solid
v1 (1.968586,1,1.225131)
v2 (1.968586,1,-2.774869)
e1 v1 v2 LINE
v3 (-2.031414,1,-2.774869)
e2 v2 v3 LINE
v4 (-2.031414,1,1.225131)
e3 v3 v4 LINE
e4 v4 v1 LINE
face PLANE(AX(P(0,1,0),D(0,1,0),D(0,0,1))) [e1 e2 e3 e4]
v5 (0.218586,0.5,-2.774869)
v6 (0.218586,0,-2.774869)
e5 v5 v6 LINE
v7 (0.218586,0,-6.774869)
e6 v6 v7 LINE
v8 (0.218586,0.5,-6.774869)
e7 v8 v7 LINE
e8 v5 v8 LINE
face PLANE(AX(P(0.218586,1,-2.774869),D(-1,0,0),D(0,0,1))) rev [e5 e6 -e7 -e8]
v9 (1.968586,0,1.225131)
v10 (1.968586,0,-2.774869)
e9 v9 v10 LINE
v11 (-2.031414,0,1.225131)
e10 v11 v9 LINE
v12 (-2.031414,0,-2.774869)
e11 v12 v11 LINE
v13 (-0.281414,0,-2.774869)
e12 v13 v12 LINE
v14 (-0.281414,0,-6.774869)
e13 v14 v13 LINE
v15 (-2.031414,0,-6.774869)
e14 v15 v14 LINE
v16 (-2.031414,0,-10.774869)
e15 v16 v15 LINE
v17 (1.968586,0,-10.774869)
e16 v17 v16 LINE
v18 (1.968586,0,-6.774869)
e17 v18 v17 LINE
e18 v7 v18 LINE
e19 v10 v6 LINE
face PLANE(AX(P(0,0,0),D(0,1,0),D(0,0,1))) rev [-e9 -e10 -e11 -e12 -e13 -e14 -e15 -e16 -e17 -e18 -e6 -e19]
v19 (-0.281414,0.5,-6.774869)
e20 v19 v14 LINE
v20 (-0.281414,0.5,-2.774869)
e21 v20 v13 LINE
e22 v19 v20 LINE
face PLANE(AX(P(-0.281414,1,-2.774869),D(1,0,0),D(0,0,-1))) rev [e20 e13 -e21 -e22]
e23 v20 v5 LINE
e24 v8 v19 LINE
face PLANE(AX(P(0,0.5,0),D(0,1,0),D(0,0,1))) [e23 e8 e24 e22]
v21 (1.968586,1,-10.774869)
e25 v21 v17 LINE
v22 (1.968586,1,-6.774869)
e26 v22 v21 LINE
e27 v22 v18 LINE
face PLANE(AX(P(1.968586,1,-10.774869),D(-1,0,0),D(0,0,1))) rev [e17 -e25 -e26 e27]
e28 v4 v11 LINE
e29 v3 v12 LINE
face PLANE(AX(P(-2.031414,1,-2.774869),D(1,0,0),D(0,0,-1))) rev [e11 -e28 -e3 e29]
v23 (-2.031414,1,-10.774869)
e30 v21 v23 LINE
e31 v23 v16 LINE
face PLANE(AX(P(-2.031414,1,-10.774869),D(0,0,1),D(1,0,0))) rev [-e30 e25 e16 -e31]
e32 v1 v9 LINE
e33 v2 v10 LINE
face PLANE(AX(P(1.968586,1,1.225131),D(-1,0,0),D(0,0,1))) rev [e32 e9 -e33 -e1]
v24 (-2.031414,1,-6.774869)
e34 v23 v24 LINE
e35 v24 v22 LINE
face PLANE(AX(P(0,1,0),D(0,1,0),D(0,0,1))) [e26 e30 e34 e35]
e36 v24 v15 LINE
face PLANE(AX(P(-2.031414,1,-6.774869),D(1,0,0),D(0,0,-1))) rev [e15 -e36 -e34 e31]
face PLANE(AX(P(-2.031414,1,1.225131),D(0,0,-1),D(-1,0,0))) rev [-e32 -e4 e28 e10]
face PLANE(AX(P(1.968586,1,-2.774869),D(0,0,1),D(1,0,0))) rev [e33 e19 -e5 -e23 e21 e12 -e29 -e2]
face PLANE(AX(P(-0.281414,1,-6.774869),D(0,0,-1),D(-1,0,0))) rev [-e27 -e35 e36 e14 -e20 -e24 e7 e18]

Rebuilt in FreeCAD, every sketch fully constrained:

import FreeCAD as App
import Part
import Sketcher
from FreeCAD import Vector

doc = App.newDocument("Part")
body = doc.addObject("PartDesign::Body", "Body")

# Sketch on XZ plane
sketch1 = body.newObject("Sketcher::SketchObject", "Sketch")
sketch1.AttachmentSupport = (doc.getObject("XZ_Plane"), [""])
sketch1.MapMode = "FlatFace"
sketch1.addGeometry([
    Part.LineSegment(Vector(-2, -2.8, 0), Vector(-2, 1.2, 0)),  # 0
    Part.LineSegment(Vector(-2, 1.2, 0), Vector(2, 1.2, 0)),  # 1
    Part.LineSegment(Vector(2, 1.2, 0), Vector(2, -2.8, 0)),  # 2
    Part.LineSegment(Vector(2, -2.8, 0), Vector(0.2, -2.8, 0)),  # 3
    Part.LineSegment(Vector(0.2, -2.8, 0), Vector(0.2, -6.8, 0)),  # 4
    Part.LineSegment(Vector(0.2, -6.8, 0), Vector(2, -6.8, 0)),  # 5
    Part.LineSegment(Vector(2, -6.8, 0), Vector(2, -10.8, 0)),  # 6
    Part.LineSegment(Vector(2, -10.8, 0), Vector(-2, -10.8, 0)),  # 7
    Part.LineSegment(Vector(-2, -10.8, 0), Vector(-2, -6.8, 0)),  # 8
    Part.LineSegment(Vector(-2, -6.8, 0), Vector(-0.3, -6.8, 0)),  # 9
    Part.LineSegment(Vector(-0.3, -6.8, 0), Vector(-0.3, -2.8, 0)),  # 10
    Part.LineSegment(Vector(-0.3, -2.8, 0), Vector(-2, -2.8, 0)),  # 11
], False)
sketch1.addConstraint([
    Sketcher.Constraint("Coincident", 0, 2, 1, 1),
    Sketcher.Constraint("Coincident", 1, 2, 2, 1),
    Sketcher.Constraint("Coincident", 2, 2, 3, 1),
    Sketcher.Constraint("Coincident", 3, 2, 4, 1),
    Sketcher.Constraint("Coincident", 4, 2, 5, 1),
    Sketcher.Constraint("Coincident", 5, 2, 6, 1),
    Sketcher.Constraint("Coincident", 6, 2, 7, 1),
    Sketcher.Constraint("Coincident", 7, 2, 8, 1),
    Sketcher.Constraint("Coincident", 8, 2, 9, 1),
    Sketcher.Constraint("Coincident", 9, 2, 10, 1),
    Sketcher.Constraint("Coincident", 10, 2, 11, 1),
    Sketcher.Constraint("Coincident", 11, 2, 0, 1),
    Sketcher.Constraint("Vertical", 0),
    Sketcher.Constraint("Horizontal", 1),
    Sketcher.Constraint("Vertical", 2),
    Sketcher.Constraint("Horizontal", 3),
    Sketcher.Constraint("Vertical", 4),
    Sketcher.Constraint("Horizontal", 5),
    Sketcher.Constraint("Vertical", 6),
    Sketcher.Constraint("Horizontal", 7),
    Sketcher.Constraint("Vertical", 8),
    Sketcher.Constraint("Horizontal", 9),
    Sketcher.Constraint("Vertical", 10),
    Sketcher.Constraint("Horizontal", 11),
    Sketcher.Constraint("Horizontal", 5, 2, 8, 2),
    Sketcher.Constraint("Horizontal", 3, 2, 10, 2),
    Sketcher.Constraint("Vertical", 2, 2, 5, 2),
    Sketcher.Constraint("Vertical", 0, 2, 7, 2),
    Sketcher.Constraint("Equal", 5, 9),
    Sketcher.Constraint("Equal", 7, 0),
    Sketcher.Constraint("Equal", 2, 4),
    Sketcher.Constraint("Equal", 4, 6),
    Sketcher.Constraint("DistanceX", 1, 1, 1, 2, 4.0),
    Sketcher.Constraint("DistanceX", 3, 2, 3, 1, 1.75),
    Sketcher.Constraint("DistanceY", -1, 1, 0, 2, 1.225131),
    Sketcher.Constraint("DistanceX", 0, 2, -1, 1, 2.031414),
])
pad1 = body.newObject("PartDesign::Pad", "Pad")
pad1.Profile = sketch1
pad1.Length = 1
pad1.Reversed = True

# Sketch on XZ plane
sketch2 = body.newObject("Sketcher::SketchObject", "Sketch001")
sketch2.AttachmentSupport = (doc.getObject("XZ_Plane"), [""])
sketch2.MapMode = "FlatFace"
sketch2.AttachmentOffset = App.Placement(Vector(0, 0, -1), App.Rotation())
sketch2.addGeometry([
    Part.LineSegment(Vector(-0.3, -6.8, 0), Vector(-0.3, -2.8, 0)),
    Part.LineSegment(Vector(-0.3, -2.8, 0), Vector(0.2, -2.8, 0)),
    Part.LineSegment(Vector(0.2, -2.8, 0), Vector(0.2, -6.8, 0)),
    Part.LineSegment(Vector(0.2, -6.8, 0), Vector(-0.3, -6.8, 0)),
], False)
sketch2.addConstraint([
    Sketcher.Constraint("Coincident", 0, 2, 1, 1),
    Sketcher.Constraint("Coincident", 1, 2, 2, 1),
    Sketcher.Constraint("Coincident", 2, 2, 3, 1),
    Sketcher.Constraint("Coincident", 3, 2, 0, 1),
    Sketcher.Constraint("Vertical", 0),
    Sketcher.Constraint("Horizontal", 1),
    Sketcher.Constraint("Vertical", 2),
    Sketcher.Constraint("Horizontal", 3),
    Sketcher.Constraint("DistanceY", 0, 1, 0, 2, 4.0),
    Sketcher.Constraint("DistanceX", 1, 1, 1, 2, 0.5),
    Sketcher.Constraint("DistanceY", 0, 2, -1, 1, 2.774869),
    Sketcher.Constraint("DistanceX", 0, 2, -1, 1, 0.281414),
])
pocket1 = body.newObject("PartDesign::Pocket", "Pocket")
pocket1.Profile = sketch2
pocket1.Length = 0.5
pocket1.Reversed = True

doc.recompute()
